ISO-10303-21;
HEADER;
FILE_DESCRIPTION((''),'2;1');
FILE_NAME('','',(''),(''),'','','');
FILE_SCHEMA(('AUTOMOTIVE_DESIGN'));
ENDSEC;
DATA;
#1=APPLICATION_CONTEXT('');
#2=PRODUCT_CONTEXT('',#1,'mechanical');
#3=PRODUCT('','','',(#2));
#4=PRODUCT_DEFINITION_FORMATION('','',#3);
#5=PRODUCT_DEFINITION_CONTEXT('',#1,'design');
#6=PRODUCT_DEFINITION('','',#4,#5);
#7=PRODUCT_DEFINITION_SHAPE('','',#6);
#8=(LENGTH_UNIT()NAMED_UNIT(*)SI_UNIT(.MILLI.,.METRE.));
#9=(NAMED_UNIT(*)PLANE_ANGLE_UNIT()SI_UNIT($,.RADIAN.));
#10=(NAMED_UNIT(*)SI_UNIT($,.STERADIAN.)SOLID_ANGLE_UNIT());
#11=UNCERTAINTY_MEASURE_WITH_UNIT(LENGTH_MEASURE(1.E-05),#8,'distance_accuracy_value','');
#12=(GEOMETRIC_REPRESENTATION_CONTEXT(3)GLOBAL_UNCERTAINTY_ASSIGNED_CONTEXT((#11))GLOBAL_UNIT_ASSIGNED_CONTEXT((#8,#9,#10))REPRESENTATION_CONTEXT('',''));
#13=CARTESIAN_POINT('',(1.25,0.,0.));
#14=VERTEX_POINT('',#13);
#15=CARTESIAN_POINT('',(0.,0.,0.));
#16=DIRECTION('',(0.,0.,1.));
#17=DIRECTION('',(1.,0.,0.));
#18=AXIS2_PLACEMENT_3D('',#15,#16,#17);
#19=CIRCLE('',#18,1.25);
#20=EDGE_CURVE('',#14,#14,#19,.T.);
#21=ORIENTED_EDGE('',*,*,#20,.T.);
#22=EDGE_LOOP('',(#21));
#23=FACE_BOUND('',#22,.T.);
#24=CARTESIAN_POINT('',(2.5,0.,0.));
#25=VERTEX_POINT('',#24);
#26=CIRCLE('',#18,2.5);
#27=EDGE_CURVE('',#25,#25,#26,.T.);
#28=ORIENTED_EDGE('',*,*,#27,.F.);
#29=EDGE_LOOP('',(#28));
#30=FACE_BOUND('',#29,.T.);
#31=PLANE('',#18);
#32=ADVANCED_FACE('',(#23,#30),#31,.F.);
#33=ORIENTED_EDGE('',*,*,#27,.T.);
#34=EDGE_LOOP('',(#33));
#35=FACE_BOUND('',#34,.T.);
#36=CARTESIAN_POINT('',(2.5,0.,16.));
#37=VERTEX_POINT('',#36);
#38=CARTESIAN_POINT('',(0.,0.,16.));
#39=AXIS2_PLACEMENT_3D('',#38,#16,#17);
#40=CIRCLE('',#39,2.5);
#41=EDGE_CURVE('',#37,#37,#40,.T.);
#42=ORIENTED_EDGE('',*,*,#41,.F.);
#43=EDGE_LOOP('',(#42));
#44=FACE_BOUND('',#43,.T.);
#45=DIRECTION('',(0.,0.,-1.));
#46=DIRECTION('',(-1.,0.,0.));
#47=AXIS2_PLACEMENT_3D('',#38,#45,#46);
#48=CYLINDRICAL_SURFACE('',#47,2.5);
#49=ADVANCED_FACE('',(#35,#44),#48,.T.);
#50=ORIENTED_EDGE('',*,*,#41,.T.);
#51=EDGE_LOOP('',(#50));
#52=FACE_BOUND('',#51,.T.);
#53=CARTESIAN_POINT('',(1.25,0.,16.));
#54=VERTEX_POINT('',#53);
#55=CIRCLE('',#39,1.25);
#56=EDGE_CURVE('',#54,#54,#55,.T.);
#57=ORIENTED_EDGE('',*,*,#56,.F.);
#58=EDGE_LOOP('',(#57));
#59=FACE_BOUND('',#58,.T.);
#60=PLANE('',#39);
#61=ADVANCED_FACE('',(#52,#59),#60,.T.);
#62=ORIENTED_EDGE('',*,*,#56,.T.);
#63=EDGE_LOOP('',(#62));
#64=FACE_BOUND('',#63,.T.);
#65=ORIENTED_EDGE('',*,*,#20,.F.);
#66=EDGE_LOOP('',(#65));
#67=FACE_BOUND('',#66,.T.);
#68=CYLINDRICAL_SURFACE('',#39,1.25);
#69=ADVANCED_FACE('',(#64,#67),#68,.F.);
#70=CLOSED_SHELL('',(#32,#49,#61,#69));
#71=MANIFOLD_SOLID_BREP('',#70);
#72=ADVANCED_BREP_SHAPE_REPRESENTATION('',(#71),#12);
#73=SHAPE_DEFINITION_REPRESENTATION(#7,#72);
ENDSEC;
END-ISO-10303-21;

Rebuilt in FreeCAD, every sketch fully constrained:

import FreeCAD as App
import Part
import Sketcher
from FreeCAD import Vector
Q = App.Units.Quantity

doc = App.newDocument("Part")
body = doc.addObject("PartDesign::Body", "Body")

# Sketch on XY plane
sketch1 = body.newObject("Sketcher::SketchObject", "Sketch")
sketch1.AttachmentSupport = (doc.getObject("XY_Plane"), [""])
sketch1.MapMode = "FlatFace"
sketch1.addGeometry(Part.Circle(Vector(0, 0, 0), Vector(0, 0, 1), 2.5), False)
sketch1.addConstraint(Sketcher.Constraint("Coincident", 0, 3, -1, 1))
sketch1.addConstraint(Sketcher.Constraint("Diameter", 0, Q("5 mm")))
pad1 = body.newObject("PartDesign::Pad", "Pad")
pad1.Profile = sketch1
pad1.Length = 16

# Sketch on XY plane
sketch2 = body.newObject("Sketcher::SketchObject", "Sketch001")
sketch2.AttachmentSupport = (doc.getObject("XY_Plane"), [""])
sketch2.MapMode = "FlatFace"
sketch2.AttachmentOffset = App.Placement(Vector(0, 0, 16), App.Rotation())
sketch2.addGeometry(Part.Circle(Vector(0, 0, 0), Vector(0, 0, 1), 1.2), False)
sketch2.addConstraint(Sketcher.Constraint("Coincident", 0, 3, -1, 1))
sketch2.addConstraint(Sketcher.Constraint("Diameter", 0, Q("2.5 mm")))
doc.recompute()
hole = body.newObject("PartDesign::Hole", "Hole")
hole.Profile = sketch2
hole.ThreadType = "None"
hole.Diameter = 2.5
hole.DepthType = "ThroughAll"

doc.recompute()
